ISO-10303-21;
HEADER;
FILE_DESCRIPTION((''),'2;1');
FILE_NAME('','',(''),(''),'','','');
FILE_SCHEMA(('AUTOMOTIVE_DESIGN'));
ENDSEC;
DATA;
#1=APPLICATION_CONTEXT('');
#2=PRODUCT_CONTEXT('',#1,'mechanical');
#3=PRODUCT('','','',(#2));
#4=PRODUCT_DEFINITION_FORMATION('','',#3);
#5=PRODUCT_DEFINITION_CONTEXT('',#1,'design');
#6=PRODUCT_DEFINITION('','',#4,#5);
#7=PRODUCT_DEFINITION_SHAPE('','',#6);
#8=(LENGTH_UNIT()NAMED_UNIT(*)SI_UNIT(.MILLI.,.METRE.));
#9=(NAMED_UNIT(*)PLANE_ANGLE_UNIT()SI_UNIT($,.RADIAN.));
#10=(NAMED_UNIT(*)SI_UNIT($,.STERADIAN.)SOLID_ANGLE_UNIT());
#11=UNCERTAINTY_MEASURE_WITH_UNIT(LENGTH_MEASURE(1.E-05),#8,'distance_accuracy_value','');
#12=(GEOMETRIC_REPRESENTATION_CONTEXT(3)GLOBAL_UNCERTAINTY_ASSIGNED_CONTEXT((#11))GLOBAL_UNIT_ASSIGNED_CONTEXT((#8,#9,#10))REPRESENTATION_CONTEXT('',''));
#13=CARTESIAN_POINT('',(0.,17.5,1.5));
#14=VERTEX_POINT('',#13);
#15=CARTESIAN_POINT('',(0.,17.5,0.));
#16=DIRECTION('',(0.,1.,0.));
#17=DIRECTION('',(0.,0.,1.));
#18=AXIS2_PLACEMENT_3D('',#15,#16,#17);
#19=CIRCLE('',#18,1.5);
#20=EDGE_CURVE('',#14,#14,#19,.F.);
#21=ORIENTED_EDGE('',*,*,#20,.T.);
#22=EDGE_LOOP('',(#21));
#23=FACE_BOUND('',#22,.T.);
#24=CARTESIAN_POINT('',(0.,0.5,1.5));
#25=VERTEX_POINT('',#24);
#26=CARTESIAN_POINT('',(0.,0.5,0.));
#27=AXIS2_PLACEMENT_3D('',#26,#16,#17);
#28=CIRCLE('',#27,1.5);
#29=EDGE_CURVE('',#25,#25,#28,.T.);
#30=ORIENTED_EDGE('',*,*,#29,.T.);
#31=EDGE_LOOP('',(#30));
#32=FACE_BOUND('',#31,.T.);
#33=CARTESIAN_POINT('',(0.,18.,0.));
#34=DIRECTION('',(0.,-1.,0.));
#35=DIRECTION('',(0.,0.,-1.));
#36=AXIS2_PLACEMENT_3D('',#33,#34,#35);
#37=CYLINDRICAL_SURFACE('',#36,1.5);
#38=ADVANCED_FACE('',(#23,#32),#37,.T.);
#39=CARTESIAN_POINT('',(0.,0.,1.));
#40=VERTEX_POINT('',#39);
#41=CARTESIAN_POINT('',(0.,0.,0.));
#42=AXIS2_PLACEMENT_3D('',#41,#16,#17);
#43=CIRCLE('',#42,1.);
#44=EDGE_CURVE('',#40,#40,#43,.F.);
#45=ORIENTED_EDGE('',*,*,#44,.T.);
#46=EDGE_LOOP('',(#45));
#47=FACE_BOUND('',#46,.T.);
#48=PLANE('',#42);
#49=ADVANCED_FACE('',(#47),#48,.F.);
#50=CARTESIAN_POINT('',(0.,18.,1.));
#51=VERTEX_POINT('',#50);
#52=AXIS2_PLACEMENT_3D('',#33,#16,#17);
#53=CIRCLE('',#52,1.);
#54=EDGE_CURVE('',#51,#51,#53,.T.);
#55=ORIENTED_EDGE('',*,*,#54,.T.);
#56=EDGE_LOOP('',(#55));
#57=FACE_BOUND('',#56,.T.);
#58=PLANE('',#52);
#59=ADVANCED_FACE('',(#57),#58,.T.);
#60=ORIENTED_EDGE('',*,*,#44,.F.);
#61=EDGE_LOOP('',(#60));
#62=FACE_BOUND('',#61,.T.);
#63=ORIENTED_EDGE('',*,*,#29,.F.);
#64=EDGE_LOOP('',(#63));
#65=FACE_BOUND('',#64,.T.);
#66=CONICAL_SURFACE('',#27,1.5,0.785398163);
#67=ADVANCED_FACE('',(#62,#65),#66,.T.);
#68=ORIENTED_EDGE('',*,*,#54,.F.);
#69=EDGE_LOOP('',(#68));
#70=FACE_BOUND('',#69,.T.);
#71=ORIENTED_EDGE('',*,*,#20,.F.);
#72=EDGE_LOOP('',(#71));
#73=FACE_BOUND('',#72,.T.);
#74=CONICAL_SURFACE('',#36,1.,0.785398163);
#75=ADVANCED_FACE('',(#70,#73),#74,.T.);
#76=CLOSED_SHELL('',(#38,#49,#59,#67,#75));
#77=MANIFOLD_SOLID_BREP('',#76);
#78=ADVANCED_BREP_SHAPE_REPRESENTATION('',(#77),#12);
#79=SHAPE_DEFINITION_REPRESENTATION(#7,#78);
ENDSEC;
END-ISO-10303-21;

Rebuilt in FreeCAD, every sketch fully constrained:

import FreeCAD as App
import Part
import Sketcher

V = App.Vector
Q = App.Units.Quantity


def edges_at(feature, points):
    """Names of the edges that pass closest to the given points."""
    edges = feature.Shape.Edges
    near = lambda p: min(range(len(edges)), key=lambda i: edges[i].distToShape(Part.Vertex(*p))[0])
    return sorted({f"Edge{near(p) + 1}" for p in points})

doc = App.newDocument("Part")
body = doc.addObject("PartDesign::Body", "Body")

# Sketch on XZ plane
sketch1 = body.newObject("Sketcher::SketchObject", "Sketch")
sketch1.AttachmentSupport = (doc.getObject("XZ_Plane"), [""])
sketch1.MapMode = "FlatFace"
sketch1.addGeometry(Part.Circle(V(0, 0, 0), V(0, 0, 1), 1.5), False)
sketch1.addConstraint([
    Sketcher.Constraint("Coincident", 0, 3, -1, 1),
    Sketcher.Constraint("Diameter", 0, Q("3 mm")),
])
pad1 = body.newObject("PartDesign::Pad", "Pad")
pad1.Profile = sketch1
pad1.Length = 18
pad1.Reversed = True
doc.recompute()

chamfer = body.newObject("PartDesign::Chamfer", "Chamfer")
chamfer.Base = (pad1, edges_at(pad1, [(0, 0, -1.5), (0, 18, -1.5)]))
chamfer.Size = 0.5

doc.recompute()
